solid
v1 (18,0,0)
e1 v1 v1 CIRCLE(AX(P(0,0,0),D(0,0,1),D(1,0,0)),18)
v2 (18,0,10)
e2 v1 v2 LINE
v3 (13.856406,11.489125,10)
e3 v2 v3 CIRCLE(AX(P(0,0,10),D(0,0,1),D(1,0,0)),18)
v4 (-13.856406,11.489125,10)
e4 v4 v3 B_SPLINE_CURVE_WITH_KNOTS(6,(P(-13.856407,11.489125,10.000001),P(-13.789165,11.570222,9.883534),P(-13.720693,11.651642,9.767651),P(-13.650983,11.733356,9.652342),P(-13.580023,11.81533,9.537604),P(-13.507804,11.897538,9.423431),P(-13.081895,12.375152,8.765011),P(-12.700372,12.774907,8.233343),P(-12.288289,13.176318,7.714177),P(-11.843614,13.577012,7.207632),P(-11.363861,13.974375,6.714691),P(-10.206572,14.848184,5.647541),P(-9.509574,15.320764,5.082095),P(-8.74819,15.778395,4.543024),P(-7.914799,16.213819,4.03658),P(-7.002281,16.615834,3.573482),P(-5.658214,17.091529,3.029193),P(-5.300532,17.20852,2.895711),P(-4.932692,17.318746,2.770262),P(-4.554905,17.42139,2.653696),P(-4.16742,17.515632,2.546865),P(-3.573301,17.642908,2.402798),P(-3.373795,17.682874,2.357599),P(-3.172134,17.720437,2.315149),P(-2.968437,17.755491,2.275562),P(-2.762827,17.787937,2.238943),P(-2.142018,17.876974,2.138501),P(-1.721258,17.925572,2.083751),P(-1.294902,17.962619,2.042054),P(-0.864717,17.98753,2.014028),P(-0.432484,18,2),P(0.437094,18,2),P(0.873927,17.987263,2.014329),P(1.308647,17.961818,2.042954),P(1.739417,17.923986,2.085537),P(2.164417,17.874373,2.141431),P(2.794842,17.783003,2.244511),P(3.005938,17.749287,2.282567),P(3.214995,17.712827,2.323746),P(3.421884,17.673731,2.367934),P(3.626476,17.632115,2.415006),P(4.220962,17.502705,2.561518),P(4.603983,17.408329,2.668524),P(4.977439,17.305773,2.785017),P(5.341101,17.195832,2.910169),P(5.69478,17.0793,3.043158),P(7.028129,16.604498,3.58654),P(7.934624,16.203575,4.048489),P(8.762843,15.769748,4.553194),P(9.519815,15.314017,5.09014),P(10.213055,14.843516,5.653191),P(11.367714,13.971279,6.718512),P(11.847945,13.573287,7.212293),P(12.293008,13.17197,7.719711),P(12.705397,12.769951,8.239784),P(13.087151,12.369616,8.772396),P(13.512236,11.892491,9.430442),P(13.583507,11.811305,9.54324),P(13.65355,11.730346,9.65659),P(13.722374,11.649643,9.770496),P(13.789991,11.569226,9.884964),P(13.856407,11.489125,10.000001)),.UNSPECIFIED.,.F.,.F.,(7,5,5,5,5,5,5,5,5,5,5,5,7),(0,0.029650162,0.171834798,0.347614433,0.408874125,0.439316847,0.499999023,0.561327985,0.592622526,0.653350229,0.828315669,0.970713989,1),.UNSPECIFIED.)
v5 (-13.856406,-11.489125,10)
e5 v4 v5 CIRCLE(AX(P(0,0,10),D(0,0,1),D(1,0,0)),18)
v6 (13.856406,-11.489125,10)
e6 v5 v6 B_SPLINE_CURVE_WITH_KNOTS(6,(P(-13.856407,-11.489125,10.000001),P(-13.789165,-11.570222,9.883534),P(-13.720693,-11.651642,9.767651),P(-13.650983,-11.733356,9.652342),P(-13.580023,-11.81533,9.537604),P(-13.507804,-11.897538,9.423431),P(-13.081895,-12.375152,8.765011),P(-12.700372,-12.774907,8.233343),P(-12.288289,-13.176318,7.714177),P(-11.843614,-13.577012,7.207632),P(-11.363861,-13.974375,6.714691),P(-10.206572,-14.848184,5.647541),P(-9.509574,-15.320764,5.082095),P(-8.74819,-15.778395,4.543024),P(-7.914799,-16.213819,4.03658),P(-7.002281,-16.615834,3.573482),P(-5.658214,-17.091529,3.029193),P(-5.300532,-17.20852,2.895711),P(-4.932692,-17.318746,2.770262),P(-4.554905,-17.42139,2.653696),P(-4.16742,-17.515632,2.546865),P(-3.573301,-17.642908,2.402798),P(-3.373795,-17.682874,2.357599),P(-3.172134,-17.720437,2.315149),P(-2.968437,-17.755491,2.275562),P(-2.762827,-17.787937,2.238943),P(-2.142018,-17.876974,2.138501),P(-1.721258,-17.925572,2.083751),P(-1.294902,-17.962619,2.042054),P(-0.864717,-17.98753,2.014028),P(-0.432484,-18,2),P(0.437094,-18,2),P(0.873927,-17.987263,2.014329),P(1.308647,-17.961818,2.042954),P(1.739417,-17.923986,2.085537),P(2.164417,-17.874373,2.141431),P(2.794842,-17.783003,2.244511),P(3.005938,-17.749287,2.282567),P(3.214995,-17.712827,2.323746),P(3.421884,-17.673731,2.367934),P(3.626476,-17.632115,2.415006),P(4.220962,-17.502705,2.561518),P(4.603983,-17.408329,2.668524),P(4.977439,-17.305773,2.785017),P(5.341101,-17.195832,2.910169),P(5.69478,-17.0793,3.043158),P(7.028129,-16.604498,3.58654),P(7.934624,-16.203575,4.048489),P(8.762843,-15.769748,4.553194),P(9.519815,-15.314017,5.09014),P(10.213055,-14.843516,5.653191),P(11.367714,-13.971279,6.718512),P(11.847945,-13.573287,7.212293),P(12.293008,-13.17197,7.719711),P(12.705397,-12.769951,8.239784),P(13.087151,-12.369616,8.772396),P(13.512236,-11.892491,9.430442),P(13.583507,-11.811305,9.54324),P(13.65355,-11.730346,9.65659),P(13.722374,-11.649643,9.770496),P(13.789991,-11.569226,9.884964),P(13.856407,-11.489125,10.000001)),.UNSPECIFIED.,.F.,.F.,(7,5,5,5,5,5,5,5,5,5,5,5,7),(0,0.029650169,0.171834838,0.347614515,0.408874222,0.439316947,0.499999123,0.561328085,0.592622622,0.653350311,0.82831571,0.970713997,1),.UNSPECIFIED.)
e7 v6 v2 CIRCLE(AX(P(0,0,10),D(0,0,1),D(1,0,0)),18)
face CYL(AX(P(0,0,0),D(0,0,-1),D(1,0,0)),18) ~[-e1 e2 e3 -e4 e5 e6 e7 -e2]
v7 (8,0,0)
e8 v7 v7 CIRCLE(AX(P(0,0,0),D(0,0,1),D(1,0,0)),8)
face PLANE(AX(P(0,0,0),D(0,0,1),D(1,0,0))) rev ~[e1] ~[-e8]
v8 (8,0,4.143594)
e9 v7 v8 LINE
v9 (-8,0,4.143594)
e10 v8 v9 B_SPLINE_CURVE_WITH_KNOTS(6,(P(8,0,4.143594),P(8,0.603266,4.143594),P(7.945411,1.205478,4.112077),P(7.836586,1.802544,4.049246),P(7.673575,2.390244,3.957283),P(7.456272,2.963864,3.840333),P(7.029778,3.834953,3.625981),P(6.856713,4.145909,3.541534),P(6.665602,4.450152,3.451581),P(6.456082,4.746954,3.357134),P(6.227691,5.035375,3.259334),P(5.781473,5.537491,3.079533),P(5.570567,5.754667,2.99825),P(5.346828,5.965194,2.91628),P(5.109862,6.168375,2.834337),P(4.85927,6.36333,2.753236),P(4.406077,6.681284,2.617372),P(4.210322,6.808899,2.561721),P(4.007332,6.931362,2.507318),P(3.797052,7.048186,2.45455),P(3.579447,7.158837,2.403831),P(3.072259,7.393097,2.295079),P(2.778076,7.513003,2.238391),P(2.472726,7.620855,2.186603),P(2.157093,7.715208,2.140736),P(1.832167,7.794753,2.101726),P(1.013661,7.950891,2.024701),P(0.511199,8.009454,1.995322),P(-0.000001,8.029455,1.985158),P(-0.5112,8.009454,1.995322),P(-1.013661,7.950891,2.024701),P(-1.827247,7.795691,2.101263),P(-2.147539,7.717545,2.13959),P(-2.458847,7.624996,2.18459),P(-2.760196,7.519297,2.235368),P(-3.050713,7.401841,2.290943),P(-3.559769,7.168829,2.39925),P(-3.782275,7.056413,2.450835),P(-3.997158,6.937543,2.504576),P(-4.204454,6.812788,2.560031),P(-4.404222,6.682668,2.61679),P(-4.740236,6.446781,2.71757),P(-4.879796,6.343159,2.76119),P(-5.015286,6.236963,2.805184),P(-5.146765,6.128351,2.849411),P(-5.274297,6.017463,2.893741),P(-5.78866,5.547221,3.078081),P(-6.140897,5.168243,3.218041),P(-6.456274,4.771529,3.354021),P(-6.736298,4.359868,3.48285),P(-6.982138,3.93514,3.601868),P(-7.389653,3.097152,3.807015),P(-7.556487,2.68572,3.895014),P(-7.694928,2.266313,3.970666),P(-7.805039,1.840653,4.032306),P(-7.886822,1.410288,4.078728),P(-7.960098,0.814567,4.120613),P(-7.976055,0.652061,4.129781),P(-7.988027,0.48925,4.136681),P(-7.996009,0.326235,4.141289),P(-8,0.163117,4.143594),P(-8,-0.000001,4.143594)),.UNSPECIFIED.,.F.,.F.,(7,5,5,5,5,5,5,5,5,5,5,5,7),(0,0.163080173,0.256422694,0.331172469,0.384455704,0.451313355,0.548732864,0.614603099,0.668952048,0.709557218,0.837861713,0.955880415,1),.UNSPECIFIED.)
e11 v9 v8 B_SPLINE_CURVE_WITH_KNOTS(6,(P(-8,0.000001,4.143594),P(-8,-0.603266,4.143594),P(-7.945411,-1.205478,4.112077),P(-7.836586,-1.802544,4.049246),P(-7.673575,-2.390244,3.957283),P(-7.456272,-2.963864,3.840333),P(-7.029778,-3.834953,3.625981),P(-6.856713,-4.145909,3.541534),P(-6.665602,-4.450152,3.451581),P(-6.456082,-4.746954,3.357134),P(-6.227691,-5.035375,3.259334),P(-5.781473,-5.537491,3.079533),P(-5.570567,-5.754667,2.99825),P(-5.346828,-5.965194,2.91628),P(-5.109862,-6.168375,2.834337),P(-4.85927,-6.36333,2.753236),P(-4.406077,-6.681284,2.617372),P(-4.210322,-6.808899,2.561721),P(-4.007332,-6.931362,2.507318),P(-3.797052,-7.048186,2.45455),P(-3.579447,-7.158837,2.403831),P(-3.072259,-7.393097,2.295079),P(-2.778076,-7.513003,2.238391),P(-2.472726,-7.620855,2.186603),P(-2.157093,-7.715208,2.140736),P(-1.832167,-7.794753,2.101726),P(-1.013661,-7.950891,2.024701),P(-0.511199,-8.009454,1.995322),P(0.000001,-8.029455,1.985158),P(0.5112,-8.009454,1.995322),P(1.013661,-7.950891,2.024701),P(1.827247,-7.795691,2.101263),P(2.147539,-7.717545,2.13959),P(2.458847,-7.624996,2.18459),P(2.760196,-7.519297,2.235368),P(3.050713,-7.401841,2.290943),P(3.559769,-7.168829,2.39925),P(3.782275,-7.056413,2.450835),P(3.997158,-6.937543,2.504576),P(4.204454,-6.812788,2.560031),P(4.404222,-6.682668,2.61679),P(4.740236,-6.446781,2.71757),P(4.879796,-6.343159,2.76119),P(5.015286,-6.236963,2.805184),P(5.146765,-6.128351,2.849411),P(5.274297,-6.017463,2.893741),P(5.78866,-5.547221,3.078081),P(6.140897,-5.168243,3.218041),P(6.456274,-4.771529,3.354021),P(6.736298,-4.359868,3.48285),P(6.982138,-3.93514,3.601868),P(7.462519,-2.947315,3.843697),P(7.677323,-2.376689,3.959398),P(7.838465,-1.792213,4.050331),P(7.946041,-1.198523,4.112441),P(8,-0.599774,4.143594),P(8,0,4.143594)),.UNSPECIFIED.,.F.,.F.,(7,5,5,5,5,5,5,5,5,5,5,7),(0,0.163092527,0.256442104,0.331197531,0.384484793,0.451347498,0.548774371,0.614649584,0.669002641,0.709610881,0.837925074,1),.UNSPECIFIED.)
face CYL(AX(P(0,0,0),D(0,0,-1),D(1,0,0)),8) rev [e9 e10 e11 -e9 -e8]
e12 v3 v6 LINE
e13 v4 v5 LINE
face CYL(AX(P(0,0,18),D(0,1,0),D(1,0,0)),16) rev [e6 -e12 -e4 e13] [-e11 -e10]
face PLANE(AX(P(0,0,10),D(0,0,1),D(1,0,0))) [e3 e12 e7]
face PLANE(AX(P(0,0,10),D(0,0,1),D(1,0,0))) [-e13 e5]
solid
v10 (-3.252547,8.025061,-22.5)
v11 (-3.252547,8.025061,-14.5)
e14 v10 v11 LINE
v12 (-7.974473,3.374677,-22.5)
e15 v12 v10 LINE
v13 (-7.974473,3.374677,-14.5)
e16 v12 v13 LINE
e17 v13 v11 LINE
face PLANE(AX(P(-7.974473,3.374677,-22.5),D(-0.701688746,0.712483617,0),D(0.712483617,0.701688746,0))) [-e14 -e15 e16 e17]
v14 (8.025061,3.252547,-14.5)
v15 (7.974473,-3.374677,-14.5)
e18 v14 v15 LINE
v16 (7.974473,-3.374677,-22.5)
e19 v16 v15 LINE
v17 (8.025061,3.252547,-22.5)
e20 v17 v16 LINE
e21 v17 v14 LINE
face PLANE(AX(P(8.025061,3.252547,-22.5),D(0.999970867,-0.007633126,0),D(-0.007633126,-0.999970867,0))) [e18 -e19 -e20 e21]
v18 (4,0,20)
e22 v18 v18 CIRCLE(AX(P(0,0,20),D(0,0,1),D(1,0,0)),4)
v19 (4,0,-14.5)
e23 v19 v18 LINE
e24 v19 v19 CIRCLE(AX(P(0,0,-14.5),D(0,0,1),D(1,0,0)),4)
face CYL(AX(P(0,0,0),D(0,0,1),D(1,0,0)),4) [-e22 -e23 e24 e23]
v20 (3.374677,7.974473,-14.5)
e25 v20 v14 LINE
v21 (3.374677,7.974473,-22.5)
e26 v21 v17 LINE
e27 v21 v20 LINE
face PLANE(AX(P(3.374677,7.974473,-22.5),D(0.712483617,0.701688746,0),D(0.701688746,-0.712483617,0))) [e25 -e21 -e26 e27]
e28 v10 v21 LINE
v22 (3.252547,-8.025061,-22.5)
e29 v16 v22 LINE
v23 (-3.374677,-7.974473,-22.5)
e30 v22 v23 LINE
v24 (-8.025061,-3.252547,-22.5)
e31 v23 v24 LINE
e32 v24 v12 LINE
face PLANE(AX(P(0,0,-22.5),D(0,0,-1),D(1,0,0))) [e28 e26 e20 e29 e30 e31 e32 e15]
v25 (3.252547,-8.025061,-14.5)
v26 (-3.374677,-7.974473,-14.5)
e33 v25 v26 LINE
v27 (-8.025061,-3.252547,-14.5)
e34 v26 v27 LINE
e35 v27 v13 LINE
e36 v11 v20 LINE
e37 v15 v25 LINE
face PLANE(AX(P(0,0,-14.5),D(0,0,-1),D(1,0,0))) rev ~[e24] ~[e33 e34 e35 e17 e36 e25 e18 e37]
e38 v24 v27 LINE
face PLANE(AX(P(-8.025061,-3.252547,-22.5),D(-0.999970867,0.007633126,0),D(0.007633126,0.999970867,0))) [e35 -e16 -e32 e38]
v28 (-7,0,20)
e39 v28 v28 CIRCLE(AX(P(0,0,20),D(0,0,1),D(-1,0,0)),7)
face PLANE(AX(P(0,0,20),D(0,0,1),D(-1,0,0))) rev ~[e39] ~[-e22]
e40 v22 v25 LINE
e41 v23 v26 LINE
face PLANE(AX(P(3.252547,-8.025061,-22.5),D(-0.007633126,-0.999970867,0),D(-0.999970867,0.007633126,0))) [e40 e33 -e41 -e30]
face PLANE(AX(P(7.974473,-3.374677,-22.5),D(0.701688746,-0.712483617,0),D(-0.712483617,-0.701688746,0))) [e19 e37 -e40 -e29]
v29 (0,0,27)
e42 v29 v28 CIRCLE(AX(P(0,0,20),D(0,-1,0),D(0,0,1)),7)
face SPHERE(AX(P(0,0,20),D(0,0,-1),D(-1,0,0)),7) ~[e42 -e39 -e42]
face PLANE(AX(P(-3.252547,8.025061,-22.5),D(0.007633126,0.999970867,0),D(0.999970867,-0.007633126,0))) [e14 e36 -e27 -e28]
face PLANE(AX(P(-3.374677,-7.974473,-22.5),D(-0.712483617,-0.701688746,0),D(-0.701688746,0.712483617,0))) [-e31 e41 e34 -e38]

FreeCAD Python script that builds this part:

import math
import FreeCAD as App
import Part
import Sketcher
Q = App.Units.Quantity

doc = App.newDocument("Part")
body = doc.addObject("PartDesign::Body", "Body")

sketch1 = body.newObject("Sketcher::SketchObject", "Sketch")
sketch1.AttachmentSupport = (doc.getObject("XY_Plane"), [""])
sketch1.MapMode = "FlatFace"
sketch1.addGeometry([
    Part.Circle(App.Vector(0, 0, 0), App.Vector(0, 0, 1), 18),
    Part.Circle(App.Vector(0, 0, 0), App.Vector(0, 0, 1), 8),
], False)
sketch1.addConstraint([
    Sketcher.Constraint("Coincident", 0, 3, -1, 1),
    Sketcher.Constraint("Coincident", 1, 3, -1, 1),
    Sketcher.Constraint("Diameter", 0, Q("36 mm")),
    Sketcher.Constraint("Diameter", 1, Q("16 mm")),
])
pad1 = body.newObject("PartDesign::Pad", "Pad")
pad1.Profile = sketch1
pad1.Length = 10

sketch2 = body.newObject("Sketcher::SketchObject", "Sketch001")
sketch2.AttachmentSupport = (doc.getObject("XZ_Plane"), [""])
sketch2.MapMode = "FlatFace"
sketch2.addGeometry(Part.Circle(App.Vector(0, 18, 0), App.Vector(0, 0, 1), 16), False)
sketch2.addConstraint([
    Sketcher.Constraint("PointOnObject", 0, 3, -2),
    Sketcher.Constraint("Diameter", 0, Q("32 mm")),
    Sketcher.Constraint("DistanceY", -1, 1, 0, 3, Q("18 mm")),
])
pocket1 = body.newObject("PartDesign::Pocket", "Pocket")
pocket1.Profile = sketch2
pocket1.Type = "ThroughAll"
pocket1.Midplane = True
body2 = doc.addObject("PartDesign::Body", "Body001")

sketch3 = body2.newObject("Sketcher::SketchObject", "Sketch002")
sketch3.AttachmentSupport = (doc.getObject("XY_Plane001"), [""])
sketch3.MapMode = "FlatFace"
sketch3.addGeometry(Part.Circle(App.Vector(0, 0, 0), App.Vector(0, 0, 1), 4), False)
sketch3.addConstraint([
    Sketcher.Constraint("Coincident", 0, 3, -1, 1),
    Sketcher.Constraint("Diameter", 0, Q("8 mm")),
])
pad2 = body2.newObject("PartDesign::Pad", "Pad001")
pad2.Profile = sketch3
pad2.Length = 45
pad2.Midplane = True

sketch4 = body2.newObject("Sketcher::SketchObject", "Sketch003")
sketch4.AttachmentSupport = (doc.getObject("XZ_Plane001"), [""])
sketch4.MapMode = "FlatFace"
sketch4.addGeometry([
    Part.LineSegment(App.Vector(-7, 20, 0), App.Vector(0, 20, 0)),
    Part.LineSegment(App.Vector(0, 20, 0), App.Vector(0, 27, 0)),
    Part.ArcOfCircle(Part.Circle(App.Vector(0, 20, 0), App.Vector(0, 0, 1), 7), math.radians(90), math.radians(180)),
], False)
sketch4.addConstraint([
    Sketcher.Constraint("Coincident", 0, 2, 1, 1),
    Sketcher.Constraint("Coincident", 1, 2, 2, 1),
    Sketcher.Constraint("Coincident", 2, 2, 0, 1),
    Sketcher.Constraint("Horizontal", 0),
    Sketcher.Constraint("Vertical", 1),
    Sketcher.Constraint("Coincident", 0, 2, 2, 3),
    Sketcher.Constraint("PointOnObject", 2, 3, -2),
    Sketcher.Constraint("Radius", 2, Q("7 mm")),
    Sketcher.Constraint("DistanceY", -1, 1, 2, 3, Q("20 mm")),
])
revolution = body2.newObject("PartDesign::Revolution", "Revolution")
revolution.Profile = sketch4
revolution.ReferenceAxis = (sketch4, ["V_Axis"])
revolution.Angle = 360

sketch5 = body2.newObject("Sketcher::SketchObject", "Sketch004")
sketch5.AttachmentSupport = (doc.getObject("XY_Plane001"), [""])
sketch5.MapMode = "FlatFace"
sketch5.AttachmentOffset = App.Placement(App.Vector(0, 0, -22.5), App.Rotation())
sketch5.addGeometry([
    Part.LineSegment(App.Vector(7.974473, -3.374677, 0), App.Vector(3.252547, -8.025061, 0)),
    Part.LineSegment(App.Vector(3.252547, -8.025061, 0), App.Vector(-3.374677, -7.974473, 0)),
    Part.LineSegment(App.Vector(-3.374677, -7.974473, 0), App.Vector(-8.025061, -3.252547, 0)),
    Part.LineSegment(App.Vector(-8.025061, -3.252547, 0), App.Vector(-7.974473, 3.374677, 0)),
    Part.LineSegment(App.Vector(-7.974473, 3.374677, 0), App.Vector(-3.252547, 8.025061, 0)),
    Part.LineSegment(App.Vector(-3.252547, 8.025061, 0), App.Vector(3.374677, 7.974473, 0)),
    Part.LineSegment(App.Vector(3.374677, 7.974473, 0), App.Vector(8.025061, 3.252547, 0)),
    Part.LineSegment(App.Vector(8.025061, 3.252547, 0), App.Vector(7.974473, -3.374677, 0)),
], False)
sketch5.addConstraint([
    Sketcher.Constraint("Coincident", 0, 2, 1, 1),
    Sketcher.Constraint("Coincident", 1, 2, 2, 1),
    Sketcher.Constraint("Coincident", 2, 2, 3, 1),
    Sketcher.Constraint("Coincident", 3, 2, 4, 1),
    Sketcher.Constraint("Coincident", 4, 2, 5, 1),
    Sketcher.Constraint("Coincident", 5, 2, 6, 1),
    Sketcher.Constraint("Coincident", 6, 2, 7, 1),
    Sketcher.Constraint("Coincident", 7, 2, 0, 1),
    Sketcher.Constraint("Symmetric", 0, 2, 4, 2, -1, 1),
    Sketcher.Constraint("Symmetric", 1, 2, 5, 2, -1, 1),
    Sketcher.Constraint("Symmetric", 2, 2, 6, 2, -1, 1),
    Sketcher.Constraint("Symmetric", 3, 2, 7, 2, -1, 1),
    Sketcher.Constraint("Perpendicular", 0, 2),
    Sketcher.Constraint("Perpendicular", 1, 3),
    Sketcher.Constraint("Equal", 0, 1),
    Sketcher.Constraint("Equal", 1, 2),
    Sketcher.Constraint("Equal", 2, 3),
    Sketcher.Constraint("DistanceY", 0, 2, -1, 1, Q("8.025061 mm")),
    Sketcher.Constraint("DistanceY", 1, 2, 3, 2, Q("11.34915 mm")),
    Sketcher.Constraint("DistanceX", 3, 2, 0, 2, Q("11.22702 mm")),
])
pad3 = body2.newObject("PartDesign::Pad", "Pad002")
pad3.Profile = sketch5
pad3.Length = 8

doc.recompute()
